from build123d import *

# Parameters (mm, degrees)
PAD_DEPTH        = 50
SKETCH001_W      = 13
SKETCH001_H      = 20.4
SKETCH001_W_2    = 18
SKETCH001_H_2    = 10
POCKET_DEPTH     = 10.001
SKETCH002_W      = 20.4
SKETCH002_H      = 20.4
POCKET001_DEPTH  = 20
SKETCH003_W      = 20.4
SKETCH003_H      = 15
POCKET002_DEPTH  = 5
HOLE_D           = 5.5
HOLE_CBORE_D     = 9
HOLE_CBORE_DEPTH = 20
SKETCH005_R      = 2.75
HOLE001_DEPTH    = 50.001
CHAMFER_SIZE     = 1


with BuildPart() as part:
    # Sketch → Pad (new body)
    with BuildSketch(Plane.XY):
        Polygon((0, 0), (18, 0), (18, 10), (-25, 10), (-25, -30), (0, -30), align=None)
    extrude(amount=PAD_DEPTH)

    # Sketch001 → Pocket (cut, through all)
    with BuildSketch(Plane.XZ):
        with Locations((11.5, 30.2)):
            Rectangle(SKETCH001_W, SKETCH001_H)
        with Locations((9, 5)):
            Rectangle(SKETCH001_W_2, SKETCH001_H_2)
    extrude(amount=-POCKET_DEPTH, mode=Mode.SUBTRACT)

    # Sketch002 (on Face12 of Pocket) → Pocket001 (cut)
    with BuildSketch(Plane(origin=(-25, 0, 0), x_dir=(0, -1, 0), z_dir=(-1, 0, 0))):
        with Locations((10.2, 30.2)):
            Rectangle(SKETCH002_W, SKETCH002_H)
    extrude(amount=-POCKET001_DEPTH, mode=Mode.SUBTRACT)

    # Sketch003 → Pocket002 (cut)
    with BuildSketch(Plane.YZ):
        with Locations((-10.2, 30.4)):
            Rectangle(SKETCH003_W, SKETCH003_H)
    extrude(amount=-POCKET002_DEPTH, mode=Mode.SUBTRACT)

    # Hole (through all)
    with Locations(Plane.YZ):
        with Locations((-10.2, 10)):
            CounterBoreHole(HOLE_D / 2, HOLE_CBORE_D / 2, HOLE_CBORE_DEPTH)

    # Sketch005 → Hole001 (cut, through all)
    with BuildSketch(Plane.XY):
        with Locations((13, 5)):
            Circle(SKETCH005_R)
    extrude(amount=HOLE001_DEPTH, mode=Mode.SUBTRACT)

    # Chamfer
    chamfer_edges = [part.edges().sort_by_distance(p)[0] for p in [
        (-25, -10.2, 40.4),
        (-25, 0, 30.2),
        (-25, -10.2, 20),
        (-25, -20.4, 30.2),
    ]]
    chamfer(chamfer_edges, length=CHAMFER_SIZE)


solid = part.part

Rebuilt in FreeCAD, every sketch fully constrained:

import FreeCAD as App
import Part
import Sketcher
Q = App.Units.Quantity


def edges_at(feature, points):
    """Names of the edges that pass closest to the given points."""
    edges = feature.Shape.Edges
    near = lambda p: min(range(len(edges)), key=lambda i: edges[i].distToShape(Part.Vertex(*p))[0])
    return sorted({f"Edge{near(p) + 1}" for p in points})

doc = App.newDocument("Part")
body = doc.addObject("PartDesign::Body", "Body")

# Sketch on XY plane
sketch1 = body.newObject("Sketcher::SketchObject", "Sketch")
sketch1.AttachmentSupport = (doc.getObject("XY_Plane"), [""])
sketch1.MapMode = "FlatFace"
sketch1.addGeometry(Part.LineSegment(App.Vector(0, 0, 0), App.Vector(18, 0, 0)), False)
sketch1.addGeometry(Part.LineSegment(App.Vector(18, 0, 0), App.Vector(18, 10, 0)), False)
sketch1.addGeometry(Part.LineSegment(App.Vector(18, 10, 0), App.Vector(-25, 10, 0)), False)
sketch1.addGeometry(Part.LineSegment(App.Vector(-25, 10, 0), App.Vector(-25, -30, 0)), False)
sketch1.addGeometry(Part.LineSegment(App.Vector(-25, -30, 0), App.Vector(0, -30, 0)), False)
sketch1.addGeometry(Part.LineSegment(App.Vector(0, -30, 0), App.Vector(0, 0, 0)), False)
sketch1.addConstraint(Sketcher.Constraint("Coincident", 0, 2, 1, 1))
sketch1.addConstraint(Sketcher.Constraint("Coincident", 1, 2, 2, 1))
sketch1.addConstraint(Sketcher.Constraint("Coincident", 2, 2, 3, 1))
sketch1.addConstraint(Sketcher.Constraint("Coincident", 3, 2, 4, 1))
sketch1.addConstraint(Sketcher.Constraint("Coincident", 4, 2, 5, 1))
sketch1.addConstraint(Sketcher.Constraint("Coincident", 5, 2, 0, 1))
sketch1.addConstraint(Sketcher.Constraint("Horizontal", 0))
sketch1.addConstraint(Sketcher.Constraint("Vertical", 1))
sketch1.addConstraint(Sketcher.Constraint("Horizontal", 2))
sketch1.addConstraint(Sketcher.Constraint("Vertical", 3))
sketch1.addConstraint(Sketcher.Constraint("Horizontal", 4))
sketch1.addConstraint(Sketcher.Constraint("Vertical", 5))
sketch1.addConstraint(Sketcher.Constraint("Coincident", 5, 2, -1, 1))
sketch1.addConstraint(Sketcher.Constraint("DistanceX", 0, 1, 0, 2, Q("18 mm")))
sketch1.addConstraint(Sketcher.Constraint("DistanceX", 2, 2, 2, 1, Q("43 mm")))
sketch1.addConstraint(Sketcher.Constraint("DistanceY", 1, 1, 1, 2, Q("10 mm")))
sketch1.addConstraint(Sketcher.Constraint("DistanceY", 3, 2, 3, 1, Q("40 mm")))
pad1 = body.newObject("PartDesign::Pad", "Pad")
pad1.Profile = sketch1
pad1.Length = 50

# Sketch on XZ plane
sketch2 = body.newObject("Sketcher::SketchObject", "Sketch001")
sketch2.AttachmentSupport = (doc.getObject("XZ_Plane"), [""])
sketch2.MapMode = "FlatFace"
sketch2.addGeometry(Part.LineSegment(App.Vector(5, 40.4, 0), App.Vector(5, 20, 0)), False)
sketch2.addGeometry(Part.LineSegment(App.Vector(5, 20, 0), App.Vector(18, 20, 0)), False)
sketch2.addGeometry(Part.LineSegment(App.Vector(18, 20, 0), App.Vector(18, 40.4, 0)), False)
sketch2.addGeometry(Part.LineSegment(App.Vector(18, 40.4, 0), App.Vector(5, 40.4, 0)), False)
sketch2.addGeometry(Part.LineSegment(App.Vector(0, 10, 0), App.Vector(0, 0, 0)), False)
sketch2.addGeometry(Part.LineSegment(App.Vector(0, 0, 0), App.Vector(18, 0, 0)), False)
sketch2.addGeometry(Part.LineSegment(App.Vector(18, 0, 0), App.Vector(18, 10, 0)), False)
sketch2.addGeometry(Part.LineSegment(App.Vector(18, 10, 0), App.Vector(0, 10, 0)), False)
sketch2.addConstraint(Sketcher.Constraint("Coincident", 0, 2, 1, 1))
sketch2.addConstraint(Sketcher.Constraint("Coincident", 1, 2, 2, 1))
sketch2.addConstraint(Sketcher.Constraint("Coincident", 2, 2, 3, 1))
sketch2.addConstraint(Sketcher.Constraint("Coincident", 3, 2, 0, 1))
sketch2.addConstraint(Sketcher.Constraint("Coincident", 4, 2, 5, 1))
sketch2.addConstraint(Sketcher.Constraint("Coincident", 5, 2, 6, 1))
sketch2.addConstraint(Sketcher.Constraint("Coincident", 6, 2, 7, 1))
sketch2.addConstraint(Sketcher.Constraint("Coincident", 7, 2, 4, 1))
sketch2.addConstraint(Sketcher.Constraint("Vertical", 0))
sketch2.addConstraint(Sketcher.Constraint("Horizontal", 1))
sketch2.addConstraint(Sketcher.Constraint("Vertical", 2))
sketch2.addConstraint(Sketcher.Constraint("Horizontal", 3))
sketch2.addConstraint(Sketcher.Constraint("Vertical", 4))
sketch2.addConstraint(Sketcher.Constraint("Horizontal", 5))
sketch2.addConstraint(Sketcher.Constraint("Vertical", 6))
sketch2.addConstraint(Sketcher.Constraint("Horizontal", 7))
sketch2.addConstraint(Sketcher.Constraint("Coincident", 4, 2, -1, 1))
sketch2.addConstraint(Sketcher.Constraint("Vertical", 2, 2, 5, 2))
sketch2.addConstraint(Sketcher.Constraint("DistanceX", 1, 1, 1, 2, Q("13 mm")))
sketch2.addConstraint(Sketcher.Constraint("DistanceX", 5, 1, 5, 2, Q("18 mm")))
sketch2.addConstraint(Sketcher.Constraint("DistanceY", 4, 2, 4, 1, Q("10 mm")))
sketch2.addConstraint(Sketcher.Constraint("DistanceY", 0, 2, 0, 1, Q("20.4 mm")))
sketch2.addConstraint(Sketcher.Constraint("DistanceY", -1, 1, 0, 2, Q("20 mm")))
pocket1 = body.newObject("PartDesign::Pocket", "Pocket")
pocket1.Profile = sketch2
pocket1.Type = "ThroughAll"

# Sketch on YZ plane
sketch3 = body.newObject("Sketcher::SketchObject", "Sketch002")
sketch3.AttachmentSupport = (doc.getObject("YZ_Plane"), [""])
sketch3.MapMode = "FlatFace"
sketch3.AttachmentOffset = App.Placement(App.Vector(0, 0, -25), App.Rotation())
sketch3.addGeometry(Part.LineSegment(App.Vector(0, 40.4, 0), App.Vector(0, 20, 0)), False)
sketch3.addGeometry(Part.LineSegment(App.Vector(0, 20, 0), App.Vector(-20.4, 20, 0)), False)
sketch3.addGeometry(Part.LineSegment(App.Vector(-20.4, 20, 0), App.Vector(-20.4, 40.4, 0)), False)
sketch3.addGeometry(Part.LineSegment(App.Vector(-20.4, 40.4, 0), App.Vector(0, 40.4, 0)), False)
sketch3.addConstraint(Sketcher.Constraint("Coincident", 0, 2, 1, 1))
sketch3.addConstraint(Sketcher.Constraint("Coincident", 1, 2, 2, 1))
sketch3.addConstraint(Sketcher.Constraint("Coincident", 2, 2, 3, 1))
sketch3.addConstraint(Sketcher.Constraint("Coincident", 3, 2, 0, 1))
sketch3.addConstraint(Sketcher.Constraint("Vertical", 0))
sketch3.addConstraint(Sketcher.Constraint("Horizontal", 1))
sketch3.addConstraint(Sketcher.Constraint("Vertical", 2))
sketch3.addConstraint(Sketcher.Constraint("Horizontal", 3))
sketch3.addConstraint(Sketcher.Constraint("PointOnObject", 0, 2, -2))
sketch3.addConstraint(Sketcher.Constraint("Equal", 3, 0))
sketch3.addConstraint(Sketcher.Constraint("DistanceX", 1, 2, 1, 1, Q("20.4 mm")))
sketch3.addConstraint(Sketcher.Constraint("DistanceY", -1, 1, 0, 2, Q("20 mm")))
pocket2 = body.newObject("PartDesign::Pocket", "Pocket001")
pocket2.Profile = sketch3
pocket2.Length = 20
pocket2.Reversed = True

# Sketch on YZ plane
sketch4 = body.newObject("Sketcher::SketchObject", "Sketch003")
sketch4.AttachmentSupport = (doc.getObject("YZ_Plane"), [""])
sketch4.MapMode = "FlatFace"
sketch4.addGeometry(Part.LineSegment(App.Vector(-20.4, 37.9, 0), App.Vector(-20.4, 22.9, 0)), False)
sketch4.addGeometry(Part.LineSegment(App.Vector(-20.4, 22.9, 0), App.Vector(0, 22.9, 0)), False)
sketch4.addGeometry(Part.LineSegment(App.Vector(0, 22.9, 0), App.Vector(0, 37.9, 0)), False)
sketch4.addGeometry(Part.LineSegment(App.Vector(0, 37.9, 0), App.Vector(-20.4, 37.9, 0)), False)
sketch4.addConstraint(Sketcher.Constraint("Coincident", 0, 2, 1, 1))
sketch4.addConstraint(Sketcher.Constraint("Coincident", 1, 2, 2, 1))
sketch4.addConstraint(Sketcher.Constraint("Coincident", 2, 2, 3, 1))
sketch4.addConstraint(Sketcher.Constraint("Coincident", 3, 2, 0, 1))
sketch4.addConstraint(Sketcher.Constraint("Vertical", 0))
sketch4.addConstraint(Sketcher.Constraint("Horizontal", 1))
sketch4.addConstraint(Sketcher.Constraint("Vertical", 2))
sketch4.addConstraint(Sketcher.Constraint("Horizontal", 3))
sketch4.addConstraint(Sketcher.Constraint("PointOnObject", 1, 2, -2))
sketch4.addConstraint(Sketcher.Constraint("DistanceY", 0, 2, 0, 1, Q("15 mm")))
sketch4.addConstraint(Sketcher.Constraint("DistanceX", 1, 1, 1, 2, Q("20.4 mm")))
sketch4.addConstraint(Sketcher.Constraint("DistanceY", -1, 1, 0, 2, Q("22.9 mm")))
pocket3 = body.newObject("PartDesign::Pocket", "Pocket002")
pocket3.Profile = sketch4
pocket3.Length = 5

# Sketch on YZ plane
sketch5 = body.newObject("Sketcher::SketchObject", "Sketch004")
sketch5.AttachmentSupport = (doc.getObject("YZ_Plane"), [""])
sketch5.MapMode = "FlatFace"
sketch5.addGeometry(Part.Circle(App.Vector(-10.2, 10, 0), App.Vector(0, 0, 1), 2.75), False)
sketch5.addConstraint(Sketcher.Constraint("Diameter", 0, Q("5.5 mm")))
sketch5.addConstraint(Sketcher.Constraint("DistanceY", -1, 1, 0, 3, Q("10 mm")))
sketch5.addConstraint(Sketcher.Constraint("DistanceX", 0, 3, -1, 1, Q("10.2 mm")))
doc.recompute()
hole = body.newObject("PartDesign::Hole", "Hole")
hole.Profile = sketch5
hole.ThreadType = "None"
hole.Diameter = 5.5
hole.DepthType = "ThroughAll"
hole.HoleCutType = "Counterbore"
hole.HoleCutDiameter = 9
hole.HoleCutDepth = 20

# Sketch on XY plane
sketch6 = body.newObject("Sketcher::SketchObject", "Sketch005")
sketch6.AttachmentSupport = (doc.getObject("XY_Plane"), [""])
sketch6.MapMode = "FlatFace"
sketch6.addGeometry(Part.Circle(App.Vector(13, 5, 0), App.Vector(0, 0, 1), 2.75), False)
sketch6.addConstraint(Sketcher.Constraint("Diameter", 0, Q("5.5 mm")))
sketch6.addConstraint(Sketcher.Constraint("DistanceX", -1, 1, 0, 3, Q("13 mm")))
sketch6.addConstraint(Sketcher.Constraint("DistanceY", -1, 1, 0, 3, Q("5 mm")))
pocket4 = body.newObject("PartDesign::Pocket", "Pocket003")
pocket4.Profile = sketch6
pocket4.Type = "ThroughAll"
pocket4.Reversed = True
doc.recompute()

chamfer = body.newObject("PartDesign::Chamfer", "Chamfer")
chamfer.Base = (pocket4, edges_at(pocket4, [
    (-25, -10.2, 40.4),
    (-25, 0, 30.2),
    (-25, -10.2, 20),
    (-25, -20.4, 30.2),
]))
chamfer.Size = 1

doc.recompute()
